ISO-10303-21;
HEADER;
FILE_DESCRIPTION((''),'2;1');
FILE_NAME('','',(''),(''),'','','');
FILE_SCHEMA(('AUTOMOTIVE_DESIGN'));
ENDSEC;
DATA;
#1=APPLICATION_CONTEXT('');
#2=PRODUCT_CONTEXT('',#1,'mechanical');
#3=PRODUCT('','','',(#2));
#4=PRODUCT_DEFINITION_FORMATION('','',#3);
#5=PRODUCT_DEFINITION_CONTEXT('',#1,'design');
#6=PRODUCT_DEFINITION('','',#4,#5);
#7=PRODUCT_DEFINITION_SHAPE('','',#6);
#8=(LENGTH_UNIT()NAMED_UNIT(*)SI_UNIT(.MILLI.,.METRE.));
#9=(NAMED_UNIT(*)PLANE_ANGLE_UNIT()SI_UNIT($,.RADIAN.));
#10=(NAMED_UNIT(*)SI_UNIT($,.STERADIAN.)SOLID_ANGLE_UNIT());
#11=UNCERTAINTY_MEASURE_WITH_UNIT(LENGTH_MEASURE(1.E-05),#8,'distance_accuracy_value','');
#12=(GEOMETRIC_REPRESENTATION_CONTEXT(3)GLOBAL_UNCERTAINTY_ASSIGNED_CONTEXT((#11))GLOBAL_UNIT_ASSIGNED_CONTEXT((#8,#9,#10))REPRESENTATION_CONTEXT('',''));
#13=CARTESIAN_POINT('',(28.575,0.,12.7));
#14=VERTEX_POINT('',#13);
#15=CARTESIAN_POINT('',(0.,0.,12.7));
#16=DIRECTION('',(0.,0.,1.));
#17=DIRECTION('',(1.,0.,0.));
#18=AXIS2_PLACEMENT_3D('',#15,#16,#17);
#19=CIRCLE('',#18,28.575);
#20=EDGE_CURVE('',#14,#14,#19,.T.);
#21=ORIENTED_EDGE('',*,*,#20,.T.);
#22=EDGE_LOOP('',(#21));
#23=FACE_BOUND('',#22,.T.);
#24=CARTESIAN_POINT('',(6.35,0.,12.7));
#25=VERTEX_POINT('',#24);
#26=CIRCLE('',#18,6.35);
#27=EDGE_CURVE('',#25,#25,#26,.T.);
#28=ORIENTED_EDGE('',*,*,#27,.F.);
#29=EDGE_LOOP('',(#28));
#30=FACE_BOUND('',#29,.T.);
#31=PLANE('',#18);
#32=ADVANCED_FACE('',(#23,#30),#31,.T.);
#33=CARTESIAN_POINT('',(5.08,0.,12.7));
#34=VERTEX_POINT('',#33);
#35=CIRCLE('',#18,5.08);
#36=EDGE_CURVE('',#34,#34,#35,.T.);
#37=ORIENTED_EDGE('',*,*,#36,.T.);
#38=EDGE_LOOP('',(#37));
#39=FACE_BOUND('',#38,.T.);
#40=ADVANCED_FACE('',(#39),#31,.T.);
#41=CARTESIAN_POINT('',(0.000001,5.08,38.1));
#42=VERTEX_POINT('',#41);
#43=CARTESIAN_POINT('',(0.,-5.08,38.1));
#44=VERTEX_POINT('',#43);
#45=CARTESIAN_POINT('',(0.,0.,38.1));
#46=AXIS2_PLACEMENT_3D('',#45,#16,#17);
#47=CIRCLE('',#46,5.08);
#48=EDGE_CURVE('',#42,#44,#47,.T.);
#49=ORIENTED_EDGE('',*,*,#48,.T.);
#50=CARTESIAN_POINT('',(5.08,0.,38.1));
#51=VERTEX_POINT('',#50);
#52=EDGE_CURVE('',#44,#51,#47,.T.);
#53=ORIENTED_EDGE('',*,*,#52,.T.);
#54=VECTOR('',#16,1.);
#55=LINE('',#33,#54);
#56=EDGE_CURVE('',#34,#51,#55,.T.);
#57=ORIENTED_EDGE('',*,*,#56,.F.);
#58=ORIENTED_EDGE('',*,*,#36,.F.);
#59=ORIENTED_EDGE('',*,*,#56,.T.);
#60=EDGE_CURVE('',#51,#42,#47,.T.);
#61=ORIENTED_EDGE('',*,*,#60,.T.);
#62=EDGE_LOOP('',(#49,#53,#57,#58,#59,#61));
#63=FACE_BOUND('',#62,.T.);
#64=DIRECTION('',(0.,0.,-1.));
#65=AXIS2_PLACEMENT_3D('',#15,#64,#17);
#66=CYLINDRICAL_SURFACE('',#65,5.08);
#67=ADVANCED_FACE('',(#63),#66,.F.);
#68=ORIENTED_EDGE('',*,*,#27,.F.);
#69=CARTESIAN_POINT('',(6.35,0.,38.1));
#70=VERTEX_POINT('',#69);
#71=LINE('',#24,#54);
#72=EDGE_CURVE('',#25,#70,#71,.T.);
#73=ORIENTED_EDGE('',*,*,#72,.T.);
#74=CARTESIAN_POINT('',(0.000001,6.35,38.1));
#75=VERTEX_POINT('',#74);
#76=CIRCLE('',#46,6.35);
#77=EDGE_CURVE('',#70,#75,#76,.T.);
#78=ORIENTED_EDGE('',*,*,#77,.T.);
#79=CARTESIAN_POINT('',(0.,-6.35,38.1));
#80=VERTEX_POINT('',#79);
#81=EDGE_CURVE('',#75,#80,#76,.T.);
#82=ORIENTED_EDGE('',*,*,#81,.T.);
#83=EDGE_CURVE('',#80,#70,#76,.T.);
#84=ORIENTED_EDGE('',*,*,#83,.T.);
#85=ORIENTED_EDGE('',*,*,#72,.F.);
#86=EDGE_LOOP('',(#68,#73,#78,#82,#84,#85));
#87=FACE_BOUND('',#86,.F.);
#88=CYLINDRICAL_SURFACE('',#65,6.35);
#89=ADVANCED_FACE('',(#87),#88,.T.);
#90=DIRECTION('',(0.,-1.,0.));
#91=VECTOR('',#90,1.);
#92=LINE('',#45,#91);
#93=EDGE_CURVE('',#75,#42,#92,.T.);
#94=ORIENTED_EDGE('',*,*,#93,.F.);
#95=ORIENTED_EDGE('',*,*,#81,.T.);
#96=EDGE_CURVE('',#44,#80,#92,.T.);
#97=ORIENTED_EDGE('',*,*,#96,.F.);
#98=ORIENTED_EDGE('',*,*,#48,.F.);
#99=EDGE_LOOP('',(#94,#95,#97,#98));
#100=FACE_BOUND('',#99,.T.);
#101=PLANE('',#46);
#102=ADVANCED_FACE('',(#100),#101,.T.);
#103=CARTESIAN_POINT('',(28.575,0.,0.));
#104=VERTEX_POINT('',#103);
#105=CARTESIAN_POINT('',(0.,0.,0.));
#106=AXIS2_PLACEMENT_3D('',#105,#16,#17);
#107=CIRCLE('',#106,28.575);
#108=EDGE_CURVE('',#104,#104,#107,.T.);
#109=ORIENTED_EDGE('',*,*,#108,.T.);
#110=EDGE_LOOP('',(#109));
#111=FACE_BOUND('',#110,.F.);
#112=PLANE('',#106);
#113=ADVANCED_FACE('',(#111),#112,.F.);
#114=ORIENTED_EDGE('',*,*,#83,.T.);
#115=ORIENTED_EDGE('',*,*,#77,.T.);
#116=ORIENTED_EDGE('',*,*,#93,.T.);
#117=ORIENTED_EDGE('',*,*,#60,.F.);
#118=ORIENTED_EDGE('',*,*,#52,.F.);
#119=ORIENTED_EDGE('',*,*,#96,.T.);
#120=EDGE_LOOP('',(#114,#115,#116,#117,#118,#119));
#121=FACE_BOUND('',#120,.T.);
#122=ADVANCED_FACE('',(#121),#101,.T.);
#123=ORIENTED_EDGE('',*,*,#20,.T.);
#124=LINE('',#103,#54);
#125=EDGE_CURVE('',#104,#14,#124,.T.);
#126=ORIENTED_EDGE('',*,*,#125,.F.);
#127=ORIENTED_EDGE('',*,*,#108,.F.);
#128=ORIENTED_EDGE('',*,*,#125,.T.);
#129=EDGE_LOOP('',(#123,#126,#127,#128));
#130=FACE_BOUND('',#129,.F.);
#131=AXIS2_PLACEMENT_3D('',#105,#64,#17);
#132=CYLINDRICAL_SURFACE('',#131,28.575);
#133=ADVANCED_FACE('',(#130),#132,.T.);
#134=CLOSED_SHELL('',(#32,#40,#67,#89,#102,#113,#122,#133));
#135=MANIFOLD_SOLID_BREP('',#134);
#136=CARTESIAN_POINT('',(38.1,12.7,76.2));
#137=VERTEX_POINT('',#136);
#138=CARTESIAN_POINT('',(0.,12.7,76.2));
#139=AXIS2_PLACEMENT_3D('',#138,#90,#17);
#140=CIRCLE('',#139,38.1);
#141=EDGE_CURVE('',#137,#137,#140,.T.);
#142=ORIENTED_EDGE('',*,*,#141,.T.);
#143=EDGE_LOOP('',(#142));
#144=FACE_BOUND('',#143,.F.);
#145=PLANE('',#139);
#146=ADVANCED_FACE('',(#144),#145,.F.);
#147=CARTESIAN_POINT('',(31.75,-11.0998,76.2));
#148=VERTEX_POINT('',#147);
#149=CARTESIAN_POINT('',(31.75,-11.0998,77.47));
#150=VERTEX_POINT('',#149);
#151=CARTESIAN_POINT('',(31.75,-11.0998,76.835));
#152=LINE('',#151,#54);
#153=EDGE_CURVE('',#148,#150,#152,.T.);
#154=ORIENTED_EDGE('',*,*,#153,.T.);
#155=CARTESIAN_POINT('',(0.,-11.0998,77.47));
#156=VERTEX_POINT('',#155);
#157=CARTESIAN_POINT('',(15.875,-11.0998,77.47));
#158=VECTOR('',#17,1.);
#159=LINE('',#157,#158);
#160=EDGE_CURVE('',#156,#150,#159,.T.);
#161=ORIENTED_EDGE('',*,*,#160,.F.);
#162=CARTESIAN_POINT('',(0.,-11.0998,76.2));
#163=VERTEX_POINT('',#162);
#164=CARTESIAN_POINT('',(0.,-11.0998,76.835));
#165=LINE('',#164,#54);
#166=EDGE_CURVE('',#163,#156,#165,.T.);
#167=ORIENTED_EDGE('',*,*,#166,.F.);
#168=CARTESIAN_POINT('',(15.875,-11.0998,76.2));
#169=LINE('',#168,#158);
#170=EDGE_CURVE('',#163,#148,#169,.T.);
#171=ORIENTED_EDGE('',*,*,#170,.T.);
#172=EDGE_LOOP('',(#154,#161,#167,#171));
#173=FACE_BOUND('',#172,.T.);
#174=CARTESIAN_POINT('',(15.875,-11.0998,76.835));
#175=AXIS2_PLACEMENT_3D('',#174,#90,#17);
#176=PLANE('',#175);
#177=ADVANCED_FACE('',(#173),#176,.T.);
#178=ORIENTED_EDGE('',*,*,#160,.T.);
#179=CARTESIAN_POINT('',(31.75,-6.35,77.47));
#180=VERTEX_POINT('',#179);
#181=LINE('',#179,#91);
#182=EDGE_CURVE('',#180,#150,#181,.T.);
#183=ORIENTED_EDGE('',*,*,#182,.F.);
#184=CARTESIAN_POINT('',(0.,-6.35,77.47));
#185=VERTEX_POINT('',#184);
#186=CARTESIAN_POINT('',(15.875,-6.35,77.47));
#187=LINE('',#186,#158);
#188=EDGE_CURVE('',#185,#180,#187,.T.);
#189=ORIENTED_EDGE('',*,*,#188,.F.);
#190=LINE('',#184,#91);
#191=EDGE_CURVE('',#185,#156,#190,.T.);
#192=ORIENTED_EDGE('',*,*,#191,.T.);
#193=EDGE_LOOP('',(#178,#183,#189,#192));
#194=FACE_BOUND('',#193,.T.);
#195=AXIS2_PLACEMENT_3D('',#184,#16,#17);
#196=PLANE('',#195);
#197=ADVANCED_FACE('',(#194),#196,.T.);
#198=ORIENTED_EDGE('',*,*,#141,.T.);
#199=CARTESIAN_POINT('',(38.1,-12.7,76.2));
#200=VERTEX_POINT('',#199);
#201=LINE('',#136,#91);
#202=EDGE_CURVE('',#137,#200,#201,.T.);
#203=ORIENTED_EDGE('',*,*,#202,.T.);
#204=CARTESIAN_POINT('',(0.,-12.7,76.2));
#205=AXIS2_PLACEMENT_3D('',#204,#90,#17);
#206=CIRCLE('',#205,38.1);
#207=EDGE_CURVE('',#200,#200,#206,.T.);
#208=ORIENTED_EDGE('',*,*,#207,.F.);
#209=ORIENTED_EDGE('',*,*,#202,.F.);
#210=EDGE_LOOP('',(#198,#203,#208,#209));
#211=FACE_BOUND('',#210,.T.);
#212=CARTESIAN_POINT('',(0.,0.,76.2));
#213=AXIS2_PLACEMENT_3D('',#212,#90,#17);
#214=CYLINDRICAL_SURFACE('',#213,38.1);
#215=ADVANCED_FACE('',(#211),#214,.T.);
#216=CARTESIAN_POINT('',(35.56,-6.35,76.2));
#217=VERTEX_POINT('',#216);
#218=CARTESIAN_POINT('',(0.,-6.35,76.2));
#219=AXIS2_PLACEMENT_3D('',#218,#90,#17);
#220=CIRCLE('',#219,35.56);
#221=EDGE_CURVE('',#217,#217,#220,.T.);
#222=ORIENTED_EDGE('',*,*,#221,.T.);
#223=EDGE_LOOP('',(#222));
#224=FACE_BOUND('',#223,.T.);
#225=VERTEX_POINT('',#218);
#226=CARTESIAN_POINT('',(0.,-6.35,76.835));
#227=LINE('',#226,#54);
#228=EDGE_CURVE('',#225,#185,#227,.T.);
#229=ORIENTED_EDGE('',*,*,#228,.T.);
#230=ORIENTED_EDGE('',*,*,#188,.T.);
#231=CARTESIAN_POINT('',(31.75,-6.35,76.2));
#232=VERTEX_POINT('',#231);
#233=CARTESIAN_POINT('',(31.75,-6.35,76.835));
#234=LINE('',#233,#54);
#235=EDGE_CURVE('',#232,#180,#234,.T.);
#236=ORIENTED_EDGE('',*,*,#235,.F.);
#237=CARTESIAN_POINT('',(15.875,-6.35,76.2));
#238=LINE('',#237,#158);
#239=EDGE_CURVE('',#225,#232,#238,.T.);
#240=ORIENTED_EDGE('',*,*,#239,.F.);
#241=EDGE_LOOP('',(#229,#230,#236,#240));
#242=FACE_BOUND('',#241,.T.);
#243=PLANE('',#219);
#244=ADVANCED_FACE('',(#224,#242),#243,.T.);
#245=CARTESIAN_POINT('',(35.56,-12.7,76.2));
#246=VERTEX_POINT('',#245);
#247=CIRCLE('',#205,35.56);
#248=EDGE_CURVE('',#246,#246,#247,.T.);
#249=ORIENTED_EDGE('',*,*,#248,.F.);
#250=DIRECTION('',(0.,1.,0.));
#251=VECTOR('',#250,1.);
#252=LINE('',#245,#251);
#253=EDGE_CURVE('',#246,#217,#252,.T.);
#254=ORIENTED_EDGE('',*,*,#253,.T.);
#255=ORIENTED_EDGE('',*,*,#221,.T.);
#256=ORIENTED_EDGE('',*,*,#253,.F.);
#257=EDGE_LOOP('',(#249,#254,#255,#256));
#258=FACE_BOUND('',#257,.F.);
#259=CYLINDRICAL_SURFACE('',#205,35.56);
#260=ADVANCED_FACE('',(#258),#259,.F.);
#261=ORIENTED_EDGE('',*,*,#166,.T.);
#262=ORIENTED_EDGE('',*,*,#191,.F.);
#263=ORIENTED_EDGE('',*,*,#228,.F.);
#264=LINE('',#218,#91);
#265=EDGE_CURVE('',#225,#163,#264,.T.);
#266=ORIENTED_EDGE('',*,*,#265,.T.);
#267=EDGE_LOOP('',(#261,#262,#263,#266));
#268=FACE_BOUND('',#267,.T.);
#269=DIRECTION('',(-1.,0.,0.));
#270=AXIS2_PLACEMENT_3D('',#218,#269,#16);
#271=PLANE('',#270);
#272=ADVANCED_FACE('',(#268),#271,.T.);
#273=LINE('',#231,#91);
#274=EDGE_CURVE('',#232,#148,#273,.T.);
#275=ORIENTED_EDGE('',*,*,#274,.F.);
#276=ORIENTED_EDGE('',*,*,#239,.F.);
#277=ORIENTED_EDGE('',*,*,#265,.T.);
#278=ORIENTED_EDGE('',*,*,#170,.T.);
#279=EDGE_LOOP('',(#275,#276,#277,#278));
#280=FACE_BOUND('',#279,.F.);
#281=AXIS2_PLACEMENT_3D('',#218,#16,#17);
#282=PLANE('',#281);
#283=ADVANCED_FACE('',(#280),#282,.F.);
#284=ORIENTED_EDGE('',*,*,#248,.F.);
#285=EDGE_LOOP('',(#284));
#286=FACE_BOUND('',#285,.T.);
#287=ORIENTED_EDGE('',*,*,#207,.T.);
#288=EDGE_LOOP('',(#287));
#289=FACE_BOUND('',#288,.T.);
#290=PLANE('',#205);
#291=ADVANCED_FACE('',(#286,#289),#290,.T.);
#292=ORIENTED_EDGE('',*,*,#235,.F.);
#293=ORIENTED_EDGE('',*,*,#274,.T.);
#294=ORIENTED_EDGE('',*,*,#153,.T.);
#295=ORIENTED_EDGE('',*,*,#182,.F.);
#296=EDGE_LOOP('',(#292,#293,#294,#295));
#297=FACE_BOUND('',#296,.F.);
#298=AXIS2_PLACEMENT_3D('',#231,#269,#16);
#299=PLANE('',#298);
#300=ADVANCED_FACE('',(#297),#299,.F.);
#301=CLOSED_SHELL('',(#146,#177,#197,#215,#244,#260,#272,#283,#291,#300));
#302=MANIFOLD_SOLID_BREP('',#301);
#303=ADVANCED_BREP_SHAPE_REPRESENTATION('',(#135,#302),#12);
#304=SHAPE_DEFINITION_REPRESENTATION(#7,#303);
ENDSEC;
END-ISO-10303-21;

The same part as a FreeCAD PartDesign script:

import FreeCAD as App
import Part
import Sketcher

V = App.Vector
Q = App.Units.Quantity

doc = App.newDocument("Part")
body = doc.addObject("PartDesign::Body", "Body")
body.AllowCompound = True

sketch1 = body.newObject("Sketcher::SketchObject", "Sketch")
sketch1.AttachmentSupport = (doc.getObject("XY_Plane"), [""])
sketch1.MapMode = "FlatFace"
sketch1.addGeometry(Part.Circle(V(0, 0, 0), V(0, 0, 1), 29), False)
sketch1.addConstraint([
    Sketcher.Constraint("Coincident", 0, 3, -1, 1),
    Sketcher.Constraint("Diameter", 0, Q("2.25 in")),
])
pad1 = body.newObject("PartDesign::Pad", "Pad")
pad1.Profile = sketch1
pad1.Length = Q("0.5 in")

sketch2 = body.newObject("Sketcher::SketchObject", "Sketch001")
sketch2.AttachmentSupport = (doc.getObject("XY_Plane"), [""])
sketch2.MapMode = "FlatFace"
sketch2.AttachmentOffset = App.Placement(V(0, 0, 0.5 * 25.4), App.Rotation())
sketch2.addGeometry([
    Part.Circle(V(0, 0, 0), V(0, 0, 1), 6),
    Part.Circle(V(0, 0, 0), V(0, 0, 1), 5),
], False)
sketch2.addConstraint([
    Sketcher.Constraint("Coincident", 0, 3, -1, 1),
    Sketcher.Constraint("Coincident", 1, 3, -1, 1),
    Sketcher.Constraint("Diameter", 0, Q("0.5 in")),
    Sketcher.Constraint("Diameter", 1, Q("0.4 in")),
])
pad2 = body.newObject("PartDesign::Pad", "Pad001")
pad2.Profile = sketch2
pad2.Length = Q("1 in")

sketch3 = body.newObject("Sketcher::SketchObject", "Sketch002")
sketch3.AttachmentSupport = (doc.getObject("XZ_Plane"), [""])
sketch3.MapMode = "FlatFace"
sketch3.addGeometry(Part.Circle(V(0, 76, 0), V(0, 0, 1), 38), False)
sketch3.addConstraint([
    Sketcher.Constraint("PointOnObject", 0, 3, -2),
    Sketcher.Constraint("Diameter", 0, Q("3 in")),
    Sketcher.Constraint("DistanceY", -1, 1, 0, 3, Q("3 in")),
])
pad3 = body.newObject("PartDesign::Pad", "Pad002")
pad3.Profile = sketch3
pad3.Length = Q("1 in")
pad3.Midplane = True

sketch4 = body.newObject("Sketcher::SketchObject", "Sketch003")
sketch4.AttachmentSupport = (doc.getObject("XZ_Plane"), [""])
sketch4.MapMode = "FlatFace"
sketch4.AttachmentOffset = App.Placement(V(0, 0, 0.5 * 25.4), App.Rotation())
sketch4.addGeometry(Part.Circle(V(0, 76, 0), V(0, 0, 1), 36), False)
sketch4.addConstraint([
    Sketcher.Constraint("PointOnObject", 0, 3, -2),
    Sketcher.Constraint("Diameter", 0, Q("2.8 in")),
    Sketcher.Constraint("DistanceY", -1, 1, 0, 3, Q("3 in")),
])
pocket1 = body.newObject("PartDesign::Pocket", "Pocket")
pocket1.Profile = sketch4
pocket1.Length = Q("0.25 in")

sketch5 = body.newObject("Sketcher::SketchObject", "Sketch004")
sketch5.AttachmentSupport = (doc.getObject("XZ_Plane"), [""])
sketch5.MapMode = "FlatFace"
sketch5.AttachmentOffset = App.Placement(V(0, 0, 0.25 * 25.4), App.Rotation())
sketch5.addGeometry([
    Part.LineSegment(V(0, 77.5, 0), V(0, 76.2, 0)),
    Part.LineSegment(V(0, 76.2, 0), V(31.8, 76.2, 0)),
    Part.LineSegment(V(31.8, 76.2, 0), V(31.8, 77.5, 0)),
    Part.LineSegment(V(31.8, 77.5, 0), V(0, 77.5, 0)),
], False)
sketch5.addConstraint([
    Sketcher.Constraint("Coincident", 0, 2, 1, 1),
    Sketcher.Constraint("Coincident", 1, 2, 2, 1),
    Sketcher.Constraint("Coincident", 2, 2, 3, 1),
    Sketcher.Constraint("Coincident", 3, 2, 0, 1),
    Sketcher.Constraint("Vertical", 0),
    Sketcher.Constraint("Horizontal", 1),
    Sketcher.Constraint("Vertical", 2),
    Sketcher.Constraint("Horizontal", 3),
    Sketcher.Constraint("PointOnObject", 0, 2, -2),
    Sketcher.Constraint("DistanceY", -1, 1, 0, 2, Q("3 in")),
    Sketcher.Constraint("DistanceX", 1, 1, 1, 2, Q("1.25 in")),
    Sketcher.Constraint("DistanceY", 0, 2, 0, 1, Q("0.05 in")),
])
pad4 = body.newObject("PartDesign::Pad", "Pad003")
pad4.Profile = sketch5
pad4.Length = Q("0.187 in")

doc.recompute()
